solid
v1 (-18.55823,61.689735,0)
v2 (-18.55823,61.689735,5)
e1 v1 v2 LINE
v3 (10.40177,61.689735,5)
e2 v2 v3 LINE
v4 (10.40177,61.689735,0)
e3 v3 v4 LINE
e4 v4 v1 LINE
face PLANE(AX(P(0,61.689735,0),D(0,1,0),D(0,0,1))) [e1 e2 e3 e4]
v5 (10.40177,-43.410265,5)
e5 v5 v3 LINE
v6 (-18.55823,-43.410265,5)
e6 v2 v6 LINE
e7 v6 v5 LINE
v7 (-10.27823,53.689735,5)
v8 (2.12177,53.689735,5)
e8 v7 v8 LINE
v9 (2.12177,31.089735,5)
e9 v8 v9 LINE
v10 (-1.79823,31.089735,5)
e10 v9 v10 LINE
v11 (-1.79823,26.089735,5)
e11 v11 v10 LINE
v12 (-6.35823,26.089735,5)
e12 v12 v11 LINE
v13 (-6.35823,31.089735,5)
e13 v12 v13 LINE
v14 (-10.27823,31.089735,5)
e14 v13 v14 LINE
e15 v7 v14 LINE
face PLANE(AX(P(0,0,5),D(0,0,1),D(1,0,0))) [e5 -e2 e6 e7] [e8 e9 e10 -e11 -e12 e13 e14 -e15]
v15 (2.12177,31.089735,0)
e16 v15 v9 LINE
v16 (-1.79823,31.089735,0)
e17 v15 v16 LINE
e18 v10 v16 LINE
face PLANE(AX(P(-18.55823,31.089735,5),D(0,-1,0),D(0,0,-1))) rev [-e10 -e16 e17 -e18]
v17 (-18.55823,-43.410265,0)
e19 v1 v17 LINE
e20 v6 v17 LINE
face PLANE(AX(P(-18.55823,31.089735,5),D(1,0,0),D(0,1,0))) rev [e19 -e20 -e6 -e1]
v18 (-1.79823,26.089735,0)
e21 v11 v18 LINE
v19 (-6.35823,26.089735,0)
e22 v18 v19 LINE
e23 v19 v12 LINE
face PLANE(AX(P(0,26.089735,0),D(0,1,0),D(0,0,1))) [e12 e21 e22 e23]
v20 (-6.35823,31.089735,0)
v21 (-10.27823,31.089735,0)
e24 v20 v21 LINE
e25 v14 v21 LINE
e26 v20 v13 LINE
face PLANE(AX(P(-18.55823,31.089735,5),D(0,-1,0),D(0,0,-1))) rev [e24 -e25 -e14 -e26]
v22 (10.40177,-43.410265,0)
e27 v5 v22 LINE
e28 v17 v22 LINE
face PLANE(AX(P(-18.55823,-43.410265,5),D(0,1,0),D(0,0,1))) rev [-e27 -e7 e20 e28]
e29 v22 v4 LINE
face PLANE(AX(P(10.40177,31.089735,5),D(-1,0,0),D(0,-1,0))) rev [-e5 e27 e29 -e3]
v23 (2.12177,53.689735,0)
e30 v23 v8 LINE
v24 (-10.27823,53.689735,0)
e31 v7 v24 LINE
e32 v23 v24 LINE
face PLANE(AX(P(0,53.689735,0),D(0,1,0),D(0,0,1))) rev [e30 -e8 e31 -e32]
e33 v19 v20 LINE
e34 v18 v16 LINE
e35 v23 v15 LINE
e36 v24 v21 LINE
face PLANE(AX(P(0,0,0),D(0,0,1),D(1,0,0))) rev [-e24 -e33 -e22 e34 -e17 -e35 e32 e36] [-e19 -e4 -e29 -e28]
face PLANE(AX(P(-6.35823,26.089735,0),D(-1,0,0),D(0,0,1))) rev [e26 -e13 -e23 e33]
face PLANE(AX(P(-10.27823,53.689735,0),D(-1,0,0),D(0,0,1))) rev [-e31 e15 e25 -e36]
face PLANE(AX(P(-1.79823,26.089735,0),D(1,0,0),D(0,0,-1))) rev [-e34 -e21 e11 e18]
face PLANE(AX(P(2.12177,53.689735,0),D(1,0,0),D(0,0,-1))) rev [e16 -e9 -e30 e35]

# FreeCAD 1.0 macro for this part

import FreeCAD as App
import Part
import Sketcher

V = App.Vector


def add_polygon(sketch, points):
    """Adds a closed chain of lines whose ends are joined by coincident constraints."""
    first, n = sketch.GeometryCount, len(points)
    for a, b in zip(points, points[1:] + points[:1]):
        sketch.addGeometry(Part.LineSegment(App.Vector(*a, 0), App.Vector(*b, 0)), False)
    for i in range(n):
        sketch.addConstraint(Sketcher.Constraint("Coincident", first + i, 2, first + (i + 1) % n, 1))

doc = App.newDocument("Part")
body = doc.addObject("PartDesign::Body", "Body")

# Sketch on XY plane
sketch1 = body.newObject("Sketcher::SketchObject", "Sketch")
sketch1.AttachmentSupport = (doc.getObject("XY_Plane"), [""])
sketch1.MapMode = "FlatFace"
add_polygon(sketch1, [(-19, 31), (-19, -43), (10, -43), (10, 31)])  # lines 0-3
sketch1.addConstraint([
    Sketcher.Constraint("Vertical", 0),
    Sketcher.Constraint("Horizontal", 1),
    Sketcher.Constraint("Vertical", 2),
    Sketcher.Constraint("Horizontal", 3),
    Sketcher.Constraint("DistanceY", 0, 2, 0, 1, 74.5),
    Sketcher.Constraint("DistanceX", 1, 1, 1, 2, 28.96),
    Sketcher.Constraint("DistanceX", 0, 2, -1, 1, 18.55823),
    Sketcher.Constraint("DistanceY", 0, 2, -1, 1, 43.410265),
])
pad1 = body.newObject("PartDesign::Pad", "Pad")
pad1.Profile = sketch1
pad1.Length = 5

# Sketch on XZ plane
sketch2 = body.newObject("Sketcher::SketchObject", "Sketch001")
sketch2.AttachmentSupport = (doc.getObject("XZ_Plane"), [""])
sketch2.MapMode = "FlatFace"
sketch2.AttachmentOffset = App.Placement(V(0, 0, -31.089735), App.Rotation())
add_polygon(sketch2, [(-19, 0), (-19, 5), (-10, 5), (-10, 0)])  # lines 0-3
add_polygon(sketch2, [(2, 0), (2, 5), (10, 5), (10, 0)])  # lines 4-7
sketch2.addConstraint([
    Sketcher.Constraint("Vertical", 0),
    Sketcher.Constraint("Horizontal", 1),
    Sketcher.Constraint("Vertical", 2),
    Sketcher.Constraint("Horizontal", 3),
    Sketcher.Constraint("Vertical", 4),
    Sketcher.Constraint("Horizontal", 5),
    Sketcher.Constraint("Vertical", 6),
    Sketcher.Constraint("Horizontal", 7),
    Sketcher.Constraint("PointOnObject", 2, 2, -1),
    Sketcher.Constraint("PointOnObject", 6, 2, -1),
    Sketcher.Constraint("Horizontal", 1, 2, 4, 2),
    Sketcher.Constraint("Equal", 3, 5),
    Sketcher.Constraint("DistanceY", 0, 1, 0, 2, 5.0),
    Sketcher.Constraint("DistanceX", 1, 1, 1, 2, 8.28),
    Sketcher.Constraint("DistanceX", 1, 2, 4, 2, 12.4),
    Sketcher.Constraint("DistanceX", 0, 2, -1, 1, 18.55823),
])
pad2 = body.newObject("PartDesign::Pad", "Pad001")
pad2.Profile = sketch2
pad2.Length = 22.6
pad2.Reversed = True

# Sketch on XZ plane
sketch3 = body.newObject("Sketcher::SketchObject", "Sketch002")
sketch3.AttachmentSupport = (doc.getObject("XZ_Plane"), [""])
sketch3.MapMode = "FlatFace"
sketch3.AttachmentOffset = App.Placement(V(0, 0, -53.689735), App.Rotation())
add_polygon(sketch3, [(-19, 0), (-19, 5), (10, 5), (10, 0)])  # lines 0-3
sketch3.addConstraint([
    Sketcher.Constraint("Vertical", 0),
    Sketcher.Constraint("Horizontal", 1),
    Sketcher.Constraint("Vertical", 2),
    Sketcher.Constraint("Horizontal", 3),
    Sketcher.Constraint("PointOnObject", 2, 2, -1),
    Sketcher.Constraint("DistanceY", 0, 1, 0, 2, 5.0),
    Sketcher.Constraint("DistanceX", 1, 1, 1, 2, 28.96),
    Sketcher.Constraint("DistanceX", 0, 2, -1, 1, 18.55823),
])
pad3 = body.newObject("PartDesign::Pad", "Pad002")
pad3.Profile = sketch3
pad3.Length = 8
pad3.Reversed = True

# Sketch on XZ plane
sketch4 = body.newObject("Sketcher::SketchObject", "Sketch003")
sketch4.AttachmentSupport = (doc.getObject("XZ_Plane"), [""])
sketch4.MapMode = "FlatFace"
sketch4.AttachmentOffset = App.Placement(V(0, 0, -31.089735), App.Rotation())
add_polygon(sketch4, [(-6.4, 0), (-6.4, 5), (-1.8, 5), (-1.8, 0)])  # lines 0-3
sketch4.addConstraint([
    Sketcher.Constraint("Vertical", 0),
    Sketcher.Constraint("Horizontal", 1),
    Sketcher.Constraint("Vertical", 2),
    Sketcher.Constraint("Horizontal", 3),
    Sketcher.Constraint("PointOnObject", 2, 2, -1),
    Sketcher.Constraint("DistanceY", 0, 1, 0, 2, 5.0),
    Sketcher.Constraint("DistanceX", 1, 1, 1, 2, 4.56),
    Sketcher.Constraint("DistanceX", 0, 2, -1, 1, 6.35823),
])
pocket1 = body.newObject("PartDesign::Pocket", "Pocket")
pocket1.Profile = sketch4
pocket1.Length = 5
pocket1.Reversed = True

doc.recompute()
